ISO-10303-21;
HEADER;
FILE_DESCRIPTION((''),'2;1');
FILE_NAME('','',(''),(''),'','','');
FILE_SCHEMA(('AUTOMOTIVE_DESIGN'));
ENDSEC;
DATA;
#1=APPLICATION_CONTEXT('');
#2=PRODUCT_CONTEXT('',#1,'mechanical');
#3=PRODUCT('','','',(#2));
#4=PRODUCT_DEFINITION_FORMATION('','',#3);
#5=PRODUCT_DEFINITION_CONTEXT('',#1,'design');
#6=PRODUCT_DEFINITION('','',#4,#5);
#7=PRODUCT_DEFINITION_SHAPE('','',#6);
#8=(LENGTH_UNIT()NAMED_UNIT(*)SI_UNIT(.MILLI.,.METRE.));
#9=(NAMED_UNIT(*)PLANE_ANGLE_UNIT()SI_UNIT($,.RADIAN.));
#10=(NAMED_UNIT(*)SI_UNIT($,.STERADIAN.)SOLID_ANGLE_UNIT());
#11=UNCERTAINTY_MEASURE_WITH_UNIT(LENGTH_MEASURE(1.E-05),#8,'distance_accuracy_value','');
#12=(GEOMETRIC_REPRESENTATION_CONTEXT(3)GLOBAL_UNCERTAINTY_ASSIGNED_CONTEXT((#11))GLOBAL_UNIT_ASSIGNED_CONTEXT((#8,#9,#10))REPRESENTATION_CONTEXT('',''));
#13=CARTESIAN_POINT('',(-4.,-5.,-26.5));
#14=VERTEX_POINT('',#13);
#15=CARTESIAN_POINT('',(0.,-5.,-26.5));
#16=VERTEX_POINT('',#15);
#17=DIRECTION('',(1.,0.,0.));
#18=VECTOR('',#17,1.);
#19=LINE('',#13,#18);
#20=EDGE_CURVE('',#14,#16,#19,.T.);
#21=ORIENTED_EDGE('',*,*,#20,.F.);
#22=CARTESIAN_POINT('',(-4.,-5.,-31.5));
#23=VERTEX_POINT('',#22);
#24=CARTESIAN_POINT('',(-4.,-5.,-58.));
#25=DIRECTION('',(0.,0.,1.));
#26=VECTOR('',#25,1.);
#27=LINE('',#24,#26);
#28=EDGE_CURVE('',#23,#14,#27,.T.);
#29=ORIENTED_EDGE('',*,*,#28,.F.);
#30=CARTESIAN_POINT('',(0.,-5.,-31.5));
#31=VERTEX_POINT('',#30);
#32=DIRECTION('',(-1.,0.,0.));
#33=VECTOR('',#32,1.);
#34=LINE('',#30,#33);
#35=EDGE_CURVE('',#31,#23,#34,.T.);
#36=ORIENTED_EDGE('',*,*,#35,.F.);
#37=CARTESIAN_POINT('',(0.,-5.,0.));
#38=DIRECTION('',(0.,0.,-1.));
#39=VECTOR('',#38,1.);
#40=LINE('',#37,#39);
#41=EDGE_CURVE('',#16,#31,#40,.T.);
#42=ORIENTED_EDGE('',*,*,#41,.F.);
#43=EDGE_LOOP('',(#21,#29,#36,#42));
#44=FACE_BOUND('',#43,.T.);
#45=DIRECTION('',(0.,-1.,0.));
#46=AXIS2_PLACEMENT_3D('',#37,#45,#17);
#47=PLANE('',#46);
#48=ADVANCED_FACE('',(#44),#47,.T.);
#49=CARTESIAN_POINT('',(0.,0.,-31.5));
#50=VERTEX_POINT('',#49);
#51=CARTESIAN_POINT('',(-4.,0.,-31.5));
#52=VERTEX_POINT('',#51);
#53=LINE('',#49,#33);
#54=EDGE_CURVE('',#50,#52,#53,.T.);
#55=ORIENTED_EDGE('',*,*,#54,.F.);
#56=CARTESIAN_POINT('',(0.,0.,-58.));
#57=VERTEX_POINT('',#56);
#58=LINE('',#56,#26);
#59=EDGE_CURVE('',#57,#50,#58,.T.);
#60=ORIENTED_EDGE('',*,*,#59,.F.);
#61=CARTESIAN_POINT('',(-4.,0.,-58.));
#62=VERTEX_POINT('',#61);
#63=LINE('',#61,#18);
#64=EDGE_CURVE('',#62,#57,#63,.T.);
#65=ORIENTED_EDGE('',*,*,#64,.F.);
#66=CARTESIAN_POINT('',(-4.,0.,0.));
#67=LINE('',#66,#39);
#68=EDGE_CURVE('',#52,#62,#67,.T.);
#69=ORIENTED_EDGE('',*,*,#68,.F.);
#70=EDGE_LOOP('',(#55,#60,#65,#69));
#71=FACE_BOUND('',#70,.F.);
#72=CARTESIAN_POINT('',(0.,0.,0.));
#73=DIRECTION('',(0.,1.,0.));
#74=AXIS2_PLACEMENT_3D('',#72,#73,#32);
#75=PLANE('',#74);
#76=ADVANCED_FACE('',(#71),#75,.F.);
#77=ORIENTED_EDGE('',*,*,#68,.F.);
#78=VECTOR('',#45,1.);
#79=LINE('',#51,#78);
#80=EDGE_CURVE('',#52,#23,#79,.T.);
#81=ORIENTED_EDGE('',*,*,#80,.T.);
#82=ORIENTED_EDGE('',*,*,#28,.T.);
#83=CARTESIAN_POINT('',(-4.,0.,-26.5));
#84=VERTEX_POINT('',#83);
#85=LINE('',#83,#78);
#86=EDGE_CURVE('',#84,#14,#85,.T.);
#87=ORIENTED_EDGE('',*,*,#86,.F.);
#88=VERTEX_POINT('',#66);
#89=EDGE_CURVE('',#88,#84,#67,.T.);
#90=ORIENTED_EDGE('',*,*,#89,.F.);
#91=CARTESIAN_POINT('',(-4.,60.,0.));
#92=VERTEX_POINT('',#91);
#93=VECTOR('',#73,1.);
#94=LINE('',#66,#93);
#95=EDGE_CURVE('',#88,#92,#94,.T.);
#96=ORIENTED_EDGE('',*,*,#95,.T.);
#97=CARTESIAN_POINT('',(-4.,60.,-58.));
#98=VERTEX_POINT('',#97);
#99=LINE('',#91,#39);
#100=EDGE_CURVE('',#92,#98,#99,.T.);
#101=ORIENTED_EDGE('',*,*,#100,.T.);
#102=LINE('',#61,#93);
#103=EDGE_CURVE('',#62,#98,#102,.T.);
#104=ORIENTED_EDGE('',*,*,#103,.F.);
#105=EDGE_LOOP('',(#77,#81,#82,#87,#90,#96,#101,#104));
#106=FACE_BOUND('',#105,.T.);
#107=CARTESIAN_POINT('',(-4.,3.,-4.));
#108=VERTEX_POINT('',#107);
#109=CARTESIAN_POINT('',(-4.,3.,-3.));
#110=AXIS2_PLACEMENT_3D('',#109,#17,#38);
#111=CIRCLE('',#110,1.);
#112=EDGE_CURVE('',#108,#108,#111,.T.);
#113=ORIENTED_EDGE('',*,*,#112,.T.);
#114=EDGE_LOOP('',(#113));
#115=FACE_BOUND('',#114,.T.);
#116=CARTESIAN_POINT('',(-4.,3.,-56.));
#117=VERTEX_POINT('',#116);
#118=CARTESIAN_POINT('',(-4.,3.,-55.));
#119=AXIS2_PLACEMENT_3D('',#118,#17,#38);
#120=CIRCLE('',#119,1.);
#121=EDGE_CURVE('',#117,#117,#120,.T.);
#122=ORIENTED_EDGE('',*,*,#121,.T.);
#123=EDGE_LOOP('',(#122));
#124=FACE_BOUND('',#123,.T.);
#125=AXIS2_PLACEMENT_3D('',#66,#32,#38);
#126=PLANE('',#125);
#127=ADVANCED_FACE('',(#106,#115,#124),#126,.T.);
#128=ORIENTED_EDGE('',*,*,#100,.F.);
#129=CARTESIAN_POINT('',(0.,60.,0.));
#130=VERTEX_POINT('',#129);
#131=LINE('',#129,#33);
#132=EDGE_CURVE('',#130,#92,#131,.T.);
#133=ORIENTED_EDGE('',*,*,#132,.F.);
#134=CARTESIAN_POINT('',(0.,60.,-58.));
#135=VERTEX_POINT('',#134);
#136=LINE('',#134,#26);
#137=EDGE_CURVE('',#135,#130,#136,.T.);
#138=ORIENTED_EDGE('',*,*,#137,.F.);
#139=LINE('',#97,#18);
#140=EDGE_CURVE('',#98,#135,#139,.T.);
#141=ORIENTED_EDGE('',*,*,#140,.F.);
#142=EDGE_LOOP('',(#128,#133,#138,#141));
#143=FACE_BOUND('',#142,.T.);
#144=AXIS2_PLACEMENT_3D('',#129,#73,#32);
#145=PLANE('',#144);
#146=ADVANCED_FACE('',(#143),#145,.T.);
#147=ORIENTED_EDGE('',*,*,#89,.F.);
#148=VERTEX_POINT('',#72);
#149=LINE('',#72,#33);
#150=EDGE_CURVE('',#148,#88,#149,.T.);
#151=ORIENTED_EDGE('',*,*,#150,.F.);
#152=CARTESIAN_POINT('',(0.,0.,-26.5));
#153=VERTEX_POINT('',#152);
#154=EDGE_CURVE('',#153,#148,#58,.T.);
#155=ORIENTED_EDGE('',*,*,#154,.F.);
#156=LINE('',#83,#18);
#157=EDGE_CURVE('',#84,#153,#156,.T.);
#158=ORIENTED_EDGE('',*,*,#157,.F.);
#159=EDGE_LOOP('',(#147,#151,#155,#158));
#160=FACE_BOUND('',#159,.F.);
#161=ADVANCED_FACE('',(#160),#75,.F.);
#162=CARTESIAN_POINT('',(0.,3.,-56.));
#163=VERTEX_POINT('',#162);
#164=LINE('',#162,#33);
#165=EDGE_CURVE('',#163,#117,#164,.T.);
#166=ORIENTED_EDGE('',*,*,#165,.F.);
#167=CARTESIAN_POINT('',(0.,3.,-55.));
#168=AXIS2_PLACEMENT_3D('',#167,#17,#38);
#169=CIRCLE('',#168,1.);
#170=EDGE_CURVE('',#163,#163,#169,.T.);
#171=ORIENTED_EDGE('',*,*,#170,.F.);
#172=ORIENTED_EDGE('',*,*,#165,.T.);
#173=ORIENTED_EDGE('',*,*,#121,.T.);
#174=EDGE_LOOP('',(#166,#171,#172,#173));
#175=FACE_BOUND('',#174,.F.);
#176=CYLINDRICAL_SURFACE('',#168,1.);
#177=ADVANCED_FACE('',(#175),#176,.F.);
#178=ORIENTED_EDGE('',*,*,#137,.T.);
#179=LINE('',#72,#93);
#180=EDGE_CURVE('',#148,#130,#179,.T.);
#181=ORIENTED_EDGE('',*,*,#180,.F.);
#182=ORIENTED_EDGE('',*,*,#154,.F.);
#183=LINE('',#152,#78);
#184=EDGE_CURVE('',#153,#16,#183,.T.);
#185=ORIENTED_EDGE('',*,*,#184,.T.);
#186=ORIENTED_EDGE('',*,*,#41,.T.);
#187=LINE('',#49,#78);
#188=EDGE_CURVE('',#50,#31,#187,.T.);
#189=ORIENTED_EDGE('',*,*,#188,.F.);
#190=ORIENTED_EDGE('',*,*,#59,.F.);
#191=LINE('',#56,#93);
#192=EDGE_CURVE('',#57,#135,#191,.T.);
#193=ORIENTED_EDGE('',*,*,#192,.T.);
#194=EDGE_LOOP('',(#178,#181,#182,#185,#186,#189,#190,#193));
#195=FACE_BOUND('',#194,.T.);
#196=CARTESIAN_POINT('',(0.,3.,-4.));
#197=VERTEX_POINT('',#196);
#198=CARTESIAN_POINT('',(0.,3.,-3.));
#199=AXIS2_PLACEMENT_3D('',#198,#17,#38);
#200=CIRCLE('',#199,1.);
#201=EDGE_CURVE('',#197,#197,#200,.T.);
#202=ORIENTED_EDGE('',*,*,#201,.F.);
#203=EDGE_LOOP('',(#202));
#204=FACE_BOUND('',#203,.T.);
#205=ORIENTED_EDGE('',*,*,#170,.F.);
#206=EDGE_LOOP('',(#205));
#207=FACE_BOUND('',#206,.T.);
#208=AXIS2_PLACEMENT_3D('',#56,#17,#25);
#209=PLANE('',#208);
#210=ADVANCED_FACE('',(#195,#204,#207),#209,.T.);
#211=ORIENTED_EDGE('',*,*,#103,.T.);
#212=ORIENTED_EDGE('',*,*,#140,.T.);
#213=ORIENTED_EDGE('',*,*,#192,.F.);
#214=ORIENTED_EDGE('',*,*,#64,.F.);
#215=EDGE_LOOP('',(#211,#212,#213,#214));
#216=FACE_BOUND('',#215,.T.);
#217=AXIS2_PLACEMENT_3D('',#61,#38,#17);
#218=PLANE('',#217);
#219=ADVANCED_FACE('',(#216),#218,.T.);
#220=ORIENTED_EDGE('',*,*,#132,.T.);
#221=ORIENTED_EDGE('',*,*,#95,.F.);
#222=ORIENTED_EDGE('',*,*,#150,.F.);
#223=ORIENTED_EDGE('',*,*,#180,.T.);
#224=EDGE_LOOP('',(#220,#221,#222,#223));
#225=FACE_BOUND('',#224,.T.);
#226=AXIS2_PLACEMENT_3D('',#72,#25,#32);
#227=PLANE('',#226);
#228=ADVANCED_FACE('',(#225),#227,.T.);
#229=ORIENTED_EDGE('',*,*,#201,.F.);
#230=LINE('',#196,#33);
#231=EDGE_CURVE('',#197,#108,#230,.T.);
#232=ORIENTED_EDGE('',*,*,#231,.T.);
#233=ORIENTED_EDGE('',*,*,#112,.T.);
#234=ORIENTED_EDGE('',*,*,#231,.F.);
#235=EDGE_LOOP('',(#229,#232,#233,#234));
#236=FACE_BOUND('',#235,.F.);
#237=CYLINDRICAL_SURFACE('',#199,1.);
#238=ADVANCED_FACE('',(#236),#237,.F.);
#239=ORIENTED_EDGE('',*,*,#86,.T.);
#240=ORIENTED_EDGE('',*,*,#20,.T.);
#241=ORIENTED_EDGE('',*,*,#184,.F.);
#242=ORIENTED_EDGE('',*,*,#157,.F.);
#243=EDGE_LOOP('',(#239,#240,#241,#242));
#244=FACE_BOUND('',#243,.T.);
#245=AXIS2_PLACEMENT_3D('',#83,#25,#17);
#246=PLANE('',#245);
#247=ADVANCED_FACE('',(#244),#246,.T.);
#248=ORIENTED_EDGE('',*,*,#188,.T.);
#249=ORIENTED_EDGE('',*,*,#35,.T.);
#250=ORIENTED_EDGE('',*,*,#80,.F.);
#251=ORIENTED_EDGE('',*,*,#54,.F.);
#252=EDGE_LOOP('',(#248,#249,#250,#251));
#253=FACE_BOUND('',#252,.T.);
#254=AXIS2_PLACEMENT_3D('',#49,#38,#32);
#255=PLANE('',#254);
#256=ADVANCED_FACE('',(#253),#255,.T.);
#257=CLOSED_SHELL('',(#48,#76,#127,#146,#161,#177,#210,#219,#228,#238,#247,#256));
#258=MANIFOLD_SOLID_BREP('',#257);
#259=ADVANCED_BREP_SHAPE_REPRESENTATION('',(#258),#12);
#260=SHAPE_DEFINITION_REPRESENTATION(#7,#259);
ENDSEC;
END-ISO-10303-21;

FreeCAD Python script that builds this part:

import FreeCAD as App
import Part
import Sketcher

doc = App.newDocument("Part")
body = doc.addObject("PartDesign::Body", "Body")

sketch1 = body.newObject("Sketcher::SketchObject", "Sketch")
sketch1.AttachmentSupport = (doc.getObject("XZ_Plane"), [""])
sketch1.MapMode = "FlatFace"
sketch1.addGeometry([
    Part.LineSegment(App.Vector(-4, 0, 0), App.Vector(0, 0, 0)),
    Part.LineSegment(App.Vector(0, 0, 0), App.Vector(0, -58, 0)),
    Part.LineSegment(App.Vector(0, -58, 0), App.Vector(-4, -58, 0)),
    Part.LineSegment(App.Vector(-4, -58, 0), App.Vector(-4, 0, 0)),
], False)
sketch1.addConstraint([
    Sketcher.Constraint("Coincident", 0, 2, 1, 1),
    Sketcher.Constraint("Coincident", 1, 2, 2, 1),
    Sketcher.Constraint("Coincident", 2, 2, 3, 1),
    Sketcher.Constraint("Coincident", 3, 2, 0, 1),
    Sketcher.Constraint("Horizontal", 0),
    Sketcher.Constraint("Vertical", 1),
    Sketcher.Constraint("Horizontal", 2),
    Sketcher.Constraint("Vertical", 3),
    Sketcher.Constraint("Coincident", 0, 2, -1, 1),
    Sketcher.Constraint("DistanceX", 0, 1, 0, 2, 4.0),
    Sketcher.Constraint("DistanceY", 1, 2, 1, 1, 58.0),
])
pad1 = body.newObject("PartDesign::Pad", "Pad")
pad1.Profile = sketch1
pad1.Length = 60
pad1.Reversed = True

sketch2 = body.newObject("Sketcher::SketchObject", "Sketch001")
sketch2.AttachmentSupport = (doc.getObject("YZ_Plane"), [""])
sketch2.MapMode = "FlatFace"
sketch2.addGeometry([
    Part.Circle(App.Vector(3, -55, 0), App.Vector(0, 0, 1), 1),
    Part.Circle(App.Vector(3, -3, 0), App.Vector(0, 0, 1), 1),
], False)
sketch2.addConstraint([
    Sketcher.Constraint("Equal", 0, 1),
    Sketcher.Constraint("Vertical", 0, 3, 1, 3),
    Sketcher.Constraint("Diameter", 0, 2.0),
    Sketcher.Constraint("DistanceX", -1, 1, 0, 3, 3.0),
    Sketcher.Constraint("DistanceY", 1, 3, -1, 1, 3.0),
    Sketcher.Constraint("DistanceY", 0, 3, -1, 1, 55.0),
])
pocket1 = body.newObject("PartDesign::Pocket", "Pocket")
pocket1.Profile = sketch2
pocket1.Length = 10

sketch3 = body.newObject("Sketcher::SketchObject", "Sketch002")
sketch3.AttachmentSupport = (doc.getObject("XZ_Plane"), [""])
sketch3.MapMode = "FlatFace"
sketch3.addGeometry([
    Part.LineSegment(App.Vector(-4, -26.5, 0), App.Vector(-4, -31.5, 0)),
    Part.LineSegment(App.Vector(-4, -31.5, 0), App.Vector(0, -31.5, 0)),
    Part.LineSegment(App.Vector(0, -31.5, 0), App.Vector(0, -26.5, 0)),
    Part.LineSegment(App.Vector(0, -26.5, 0), App.Vector(-4, -26.5, 0)),
], False)
sketch3.addConstraint([
    Sketcher.Constraint("Coincident", 0, 2, 1, 1),
    Sketcher.Constraint("Coincident", 1, 2, 2, 1),
    Sketcher.Constraint("Coincident", 2, 2, 3, 1),
    Sketcher.Constraint("Coincident", 3, 2, 0, 1),
    Sketcher.Constraint("Vertical", 0),
    Sketcher.Constraint("Horizontal", 1),
    Sketcher.Constraint("Vertical", 2),
    Sketcher.Constraint("Horizontal", 3),
    Sketcher.Constraint("PointOnObject", 1, 2, -2),
    Sketcher.Constraint("DistanceY", 0, 2, 0, 1, 5.0),
    Sketcher.Constraint("DistanceY", 2, 2, -1, 1, 26.5),
    Sketcher.Constraint("DistanceX", 1, 1, 1, 2, 4.0),
])
pad2 = body.newObject("PartDesign::Pad", "Pad001")
pad2.Profile = sketch3
pad2.Length = 5

doc.recompute()
